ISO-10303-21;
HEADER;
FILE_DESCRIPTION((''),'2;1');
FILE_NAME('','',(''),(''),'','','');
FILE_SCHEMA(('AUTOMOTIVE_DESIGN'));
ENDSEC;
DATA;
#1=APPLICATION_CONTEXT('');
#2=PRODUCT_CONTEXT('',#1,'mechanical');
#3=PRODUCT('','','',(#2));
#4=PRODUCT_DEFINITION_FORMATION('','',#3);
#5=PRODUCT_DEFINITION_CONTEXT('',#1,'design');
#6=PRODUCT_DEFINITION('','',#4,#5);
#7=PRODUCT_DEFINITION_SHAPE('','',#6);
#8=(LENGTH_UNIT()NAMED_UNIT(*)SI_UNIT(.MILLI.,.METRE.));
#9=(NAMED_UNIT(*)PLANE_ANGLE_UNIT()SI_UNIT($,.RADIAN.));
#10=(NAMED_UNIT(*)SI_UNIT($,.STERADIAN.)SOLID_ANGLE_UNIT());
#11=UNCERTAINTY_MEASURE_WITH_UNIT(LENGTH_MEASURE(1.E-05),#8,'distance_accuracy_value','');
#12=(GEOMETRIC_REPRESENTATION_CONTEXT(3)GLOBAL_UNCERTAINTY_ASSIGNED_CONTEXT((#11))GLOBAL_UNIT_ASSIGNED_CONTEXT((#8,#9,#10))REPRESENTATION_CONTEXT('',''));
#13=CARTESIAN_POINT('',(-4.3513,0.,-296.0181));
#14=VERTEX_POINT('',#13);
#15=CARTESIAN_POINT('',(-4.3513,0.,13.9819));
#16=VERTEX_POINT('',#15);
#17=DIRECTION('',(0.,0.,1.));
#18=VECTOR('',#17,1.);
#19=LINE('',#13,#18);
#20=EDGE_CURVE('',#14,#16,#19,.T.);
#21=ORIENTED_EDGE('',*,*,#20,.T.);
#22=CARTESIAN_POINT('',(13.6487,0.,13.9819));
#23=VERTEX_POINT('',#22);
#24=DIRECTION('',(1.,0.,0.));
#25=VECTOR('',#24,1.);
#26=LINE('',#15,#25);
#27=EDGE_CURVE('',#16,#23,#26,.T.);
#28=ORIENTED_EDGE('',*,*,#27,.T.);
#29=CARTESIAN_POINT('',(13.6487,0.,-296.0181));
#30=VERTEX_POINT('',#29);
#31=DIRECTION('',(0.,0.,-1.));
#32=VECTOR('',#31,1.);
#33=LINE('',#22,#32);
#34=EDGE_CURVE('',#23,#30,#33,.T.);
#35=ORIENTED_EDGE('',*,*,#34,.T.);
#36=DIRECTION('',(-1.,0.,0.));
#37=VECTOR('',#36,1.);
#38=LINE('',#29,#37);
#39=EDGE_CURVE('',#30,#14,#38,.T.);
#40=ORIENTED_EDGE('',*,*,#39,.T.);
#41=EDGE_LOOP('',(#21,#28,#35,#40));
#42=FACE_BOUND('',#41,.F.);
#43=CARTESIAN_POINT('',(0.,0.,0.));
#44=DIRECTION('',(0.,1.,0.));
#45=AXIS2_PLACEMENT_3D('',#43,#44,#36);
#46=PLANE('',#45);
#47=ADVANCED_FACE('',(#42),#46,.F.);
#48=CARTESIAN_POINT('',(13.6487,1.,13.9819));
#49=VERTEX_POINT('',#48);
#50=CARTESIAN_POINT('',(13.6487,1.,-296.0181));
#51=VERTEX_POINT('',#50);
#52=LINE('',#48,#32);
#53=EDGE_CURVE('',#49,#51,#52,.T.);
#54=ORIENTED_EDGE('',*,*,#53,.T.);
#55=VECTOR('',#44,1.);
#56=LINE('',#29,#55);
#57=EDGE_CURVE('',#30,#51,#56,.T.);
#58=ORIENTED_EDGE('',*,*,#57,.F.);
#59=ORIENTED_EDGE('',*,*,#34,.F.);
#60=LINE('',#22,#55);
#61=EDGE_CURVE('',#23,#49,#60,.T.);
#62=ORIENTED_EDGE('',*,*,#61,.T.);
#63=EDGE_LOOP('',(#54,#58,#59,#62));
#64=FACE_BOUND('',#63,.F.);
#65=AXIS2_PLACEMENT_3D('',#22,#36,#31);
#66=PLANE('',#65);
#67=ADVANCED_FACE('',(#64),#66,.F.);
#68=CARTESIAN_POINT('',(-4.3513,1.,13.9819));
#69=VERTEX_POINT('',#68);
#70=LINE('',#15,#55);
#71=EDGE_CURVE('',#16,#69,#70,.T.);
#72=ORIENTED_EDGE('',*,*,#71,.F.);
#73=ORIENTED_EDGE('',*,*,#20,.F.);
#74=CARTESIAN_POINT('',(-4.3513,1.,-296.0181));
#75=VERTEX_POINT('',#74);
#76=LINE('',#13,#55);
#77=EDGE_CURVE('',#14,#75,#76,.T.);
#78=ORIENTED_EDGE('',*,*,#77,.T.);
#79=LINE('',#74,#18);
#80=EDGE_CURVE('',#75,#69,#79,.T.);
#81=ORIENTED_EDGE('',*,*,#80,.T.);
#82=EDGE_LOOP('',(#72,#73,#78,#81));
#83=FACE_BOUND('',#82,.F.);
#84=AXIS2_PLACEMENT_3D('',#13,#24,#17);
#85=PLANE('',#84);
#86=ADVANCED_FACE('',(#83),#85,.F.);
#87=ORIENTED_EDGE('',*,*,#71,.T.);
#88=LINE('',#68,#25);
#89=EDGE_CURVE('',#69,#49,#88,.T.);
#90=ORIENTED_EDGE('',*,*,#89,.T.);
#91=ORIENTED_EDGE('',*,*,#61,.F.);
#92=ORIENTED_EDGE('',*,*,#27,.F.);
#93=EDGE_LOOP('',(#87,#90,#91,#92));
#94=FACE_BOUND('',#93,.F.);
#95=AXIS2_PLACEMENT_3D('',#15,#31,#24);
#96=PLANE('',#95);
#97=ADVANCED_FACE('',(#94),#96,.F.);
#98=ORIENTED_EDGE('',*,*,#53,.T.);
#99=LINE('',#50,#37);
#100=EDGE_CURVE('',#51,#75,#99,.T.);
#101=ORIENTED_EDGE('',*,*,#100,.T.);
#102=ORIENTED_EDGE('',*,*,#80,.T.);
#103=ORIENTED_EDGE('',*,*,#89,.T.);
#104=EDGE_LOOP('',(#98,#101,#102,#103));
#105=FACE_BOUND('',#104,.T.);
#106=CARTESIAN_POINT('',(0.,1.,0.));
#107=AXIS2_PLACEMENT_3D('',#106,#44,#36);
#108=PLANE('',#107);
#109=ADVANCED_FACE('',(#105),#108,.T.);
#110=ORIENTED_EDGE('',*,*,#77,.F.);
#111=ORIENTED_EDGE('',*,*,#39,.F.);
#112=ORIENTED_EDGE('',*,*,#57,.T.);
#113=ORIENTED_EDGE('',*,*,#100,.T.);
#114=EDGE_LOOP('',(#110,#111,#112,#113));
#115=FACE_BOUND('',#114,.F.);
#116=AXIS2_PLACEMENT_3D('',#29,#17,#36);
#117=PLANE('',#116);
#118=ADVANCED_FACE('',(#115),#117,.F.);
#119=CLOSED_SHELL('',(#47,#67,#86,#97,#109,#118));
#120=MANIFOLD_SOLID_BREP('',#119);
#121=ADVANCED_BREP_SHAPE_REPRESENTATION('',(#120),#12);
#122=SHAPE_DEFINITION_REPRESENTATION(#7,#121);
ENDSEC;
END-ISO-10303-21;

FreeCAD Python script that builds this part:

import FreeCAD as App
import Part
import Sketcher

V = App.Vector

doc = App.newDocument("Part")
params = doc.addObject("Spreadsheet::Sheet", "Params")
for row, (alias, value) in enumerate([
    ("sketch1_width", "18 mm"),
    ("sketch1_height", "310 mm"),
    ("pad1_length", "1 mm"),
], start=1):
    params.set(f"A{row}", alias)
    params.set(f"B{row}", "=" + value)
    params.setAlias(f"B{row}", alias)

body = doc.addObject("PartDesign::Body", "Body")

# Sketch on XZ plane
sketch1 = body.newObject("Sketcher::SketchObject", "Sketch")
sketch1.AttachmentSupport = (doc.getObject("XZ_Plane"), [""])
sketch1.MapMode = "FlatFace"
sketch1.addGeometry(Part.LineSegment(V(-4, -296, 0), V(-4, 14, 0)), False)
sketch1.addGeometry(Part.LineSegment(V(-4, 14, 0), V(14, 14, 0)), False)
sketch1.addGeometry(Part.LineSegment(V(14, 14, 0), V(14, -296, 0)), False)
sketch1.addGeometry(Part.LineSegment(V(14, -296, 0), V(-4, -296, 0)), False)
sketch1.addConstraint(Sketcher.Constraint("Coincident", 0, 2, 1, 1))
sketch1.addConstraint(Sketcher.Constraint("Coincident", 1, 2, 2, 1))
sketch1.addConstraint(Sketcher.Constraint("Coincident", 2, 2, 3, 1))
sketch1.addConstraint(Sketcher.Constraint("Coincident", 3, 2, 0, 1))
sketch1.addConstraint(Sketcher.Constraint("Vertical", 0))
sketch1.addConstraint(Sketcher.Constraint("Horizontal", 1))
sketch1.addConstraint(Sketcher.Constraint("Vertical", 2))
sketch1.addConstraint(Sketcher.Constraint("Horizontal", 3))
sketch1.addConstraint(Sketcher.Constraint("DistanceX", 1, 1, 1, 2, 18.0))
sketch1.addConstraint(Sketcher.Constraint("DistanceY", 0, 1, 0, 2, 310.0))
sketch1.addConstraint(Sketcher.Constraint("DistanceY", -1, 1, 0, 2, 13.982))
sketch1.addConstraint(Sketcher.Constraint("DistanceX", 0, 2, -1, 1, 4.3513))
sketch1.setExpression("Constraints[8]", "Params.sketch1_width")
sketch1.setExpression("Constraints[9]", "Params.sketch1_height")
pad1 = body.newObject("PartDesign::Pad", "Pad")
pad1.Profile = sketch1
pad1.setExpression("Length", "Params.pad1_length")
pad1.Reversed = True

doc.recompute()
